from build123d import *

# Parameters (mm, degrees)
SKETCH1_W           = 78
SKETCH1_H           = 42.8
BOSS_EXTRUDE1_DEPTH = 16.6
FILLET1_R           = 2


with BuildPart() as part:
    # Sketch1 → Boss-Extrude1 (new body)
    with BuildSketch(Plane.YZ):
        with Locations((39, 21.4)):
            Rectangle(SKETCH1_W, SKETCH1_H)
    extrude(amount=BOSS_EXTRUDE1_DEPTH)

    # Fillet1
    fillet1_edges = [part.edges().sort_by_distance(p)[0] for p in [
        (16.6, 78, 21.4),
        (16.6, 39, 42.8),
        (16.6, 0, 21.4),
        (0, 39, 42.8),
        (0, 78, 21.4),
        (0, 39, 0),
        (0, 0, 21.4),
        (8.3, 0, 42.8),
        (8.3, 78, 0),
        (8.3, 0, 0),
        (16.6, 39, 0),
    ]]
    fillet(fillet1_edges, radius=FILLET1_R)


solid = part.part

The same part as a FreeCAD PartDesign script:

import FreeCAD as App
import Part
import Sketcher


def edges_at(feature, points):
    """Names of the edges that pass closest to the given points."""
    edges = feature.Shape.Edges
    near = lambda p: min(range(len(edges)), key=lambda i: edges[i].distToShape(Part.Vertex(*p))[0])
    return sorted({f"Edge{near(p) + 1}" for p in points})


def add_polygon(sketch, points):
    """Adds a closed chain of lines whose ends are joined by coincident constraints."""
    first, n = sketch.GeometryCount, len(points)
    for a, b in zip(points, points[1:] + points[:1]):
        sketch.addGeometry(Part.LineSegment(App.Vector(*a, 0), App.Vector(*b, 0)), False)
    for i in range(n):
        sketch.addConstraint(Sketcher.Constraint("Coincident", first + i, 2, first + (i + 1) % n, 1))

doc = App.newDocument("Part")
body = doc.addObject("PartDesign::Body", "Body")

# Sketch on YZ plane
sketch1 = body.newObject("Sketcher::SketchObject", "Sketch")
sketch1.AttachmentSupport = (doc.getObject("YZ_Plane"), [""])
sketch1.MapMode = "FlatFace"
add_polygon(sketch1, [(0, 43), (0, 0), (78, 0), (78, 43)])  # lines 0-3
sketch1.addConstraint(Sketcher.Constraint("Vertical", 0))
sketch1.addConstraint(Sketcher.Constraint("Horizontal", 1))
sketch1.addConstraint(Sketcher.Constraint("Vertical", 2))
sketch1.addConstraint(Sketcher.Constraint("Horizontal", 3))
sketch1.addConstraint(Sketcher.Constraint("Coincident", 0, 2, -1, 1))
sketch1.addConstraint(Sketcher.Constraint("DistanceX", 1, 1, 1, 2, 78.0))
sketch1.addConstraint(Sketcher.Constraint("DistanceY", 0, 2, 0, 1, 42.8))
pad1 = body.newObject("PartDesign::Pad", "Pad")
pad1.Profile = sketch1
pad1.Length = 16.6
doc.recompute()

fillet = body.newObject("PartDesign::Fillet", "Fillet")
fillet.Base = (pad1, edges_at(pad1, [
    (16.6, 78, 21.4),
    (16.6, 39, 42.8),
    (16.6, 0, 21.4),
    (0, 39, 42.8),
    (0, 78, 21.4),
    (0, 39, 0),
    (0, 0, 21.4),
    (8.3, 0, 42.8),
    (8.3, 78, 0),
    (8.3, 0, 0),
    (16.6, 39, 0),
]))
fillet.Radius = 2

doc.recompute()
